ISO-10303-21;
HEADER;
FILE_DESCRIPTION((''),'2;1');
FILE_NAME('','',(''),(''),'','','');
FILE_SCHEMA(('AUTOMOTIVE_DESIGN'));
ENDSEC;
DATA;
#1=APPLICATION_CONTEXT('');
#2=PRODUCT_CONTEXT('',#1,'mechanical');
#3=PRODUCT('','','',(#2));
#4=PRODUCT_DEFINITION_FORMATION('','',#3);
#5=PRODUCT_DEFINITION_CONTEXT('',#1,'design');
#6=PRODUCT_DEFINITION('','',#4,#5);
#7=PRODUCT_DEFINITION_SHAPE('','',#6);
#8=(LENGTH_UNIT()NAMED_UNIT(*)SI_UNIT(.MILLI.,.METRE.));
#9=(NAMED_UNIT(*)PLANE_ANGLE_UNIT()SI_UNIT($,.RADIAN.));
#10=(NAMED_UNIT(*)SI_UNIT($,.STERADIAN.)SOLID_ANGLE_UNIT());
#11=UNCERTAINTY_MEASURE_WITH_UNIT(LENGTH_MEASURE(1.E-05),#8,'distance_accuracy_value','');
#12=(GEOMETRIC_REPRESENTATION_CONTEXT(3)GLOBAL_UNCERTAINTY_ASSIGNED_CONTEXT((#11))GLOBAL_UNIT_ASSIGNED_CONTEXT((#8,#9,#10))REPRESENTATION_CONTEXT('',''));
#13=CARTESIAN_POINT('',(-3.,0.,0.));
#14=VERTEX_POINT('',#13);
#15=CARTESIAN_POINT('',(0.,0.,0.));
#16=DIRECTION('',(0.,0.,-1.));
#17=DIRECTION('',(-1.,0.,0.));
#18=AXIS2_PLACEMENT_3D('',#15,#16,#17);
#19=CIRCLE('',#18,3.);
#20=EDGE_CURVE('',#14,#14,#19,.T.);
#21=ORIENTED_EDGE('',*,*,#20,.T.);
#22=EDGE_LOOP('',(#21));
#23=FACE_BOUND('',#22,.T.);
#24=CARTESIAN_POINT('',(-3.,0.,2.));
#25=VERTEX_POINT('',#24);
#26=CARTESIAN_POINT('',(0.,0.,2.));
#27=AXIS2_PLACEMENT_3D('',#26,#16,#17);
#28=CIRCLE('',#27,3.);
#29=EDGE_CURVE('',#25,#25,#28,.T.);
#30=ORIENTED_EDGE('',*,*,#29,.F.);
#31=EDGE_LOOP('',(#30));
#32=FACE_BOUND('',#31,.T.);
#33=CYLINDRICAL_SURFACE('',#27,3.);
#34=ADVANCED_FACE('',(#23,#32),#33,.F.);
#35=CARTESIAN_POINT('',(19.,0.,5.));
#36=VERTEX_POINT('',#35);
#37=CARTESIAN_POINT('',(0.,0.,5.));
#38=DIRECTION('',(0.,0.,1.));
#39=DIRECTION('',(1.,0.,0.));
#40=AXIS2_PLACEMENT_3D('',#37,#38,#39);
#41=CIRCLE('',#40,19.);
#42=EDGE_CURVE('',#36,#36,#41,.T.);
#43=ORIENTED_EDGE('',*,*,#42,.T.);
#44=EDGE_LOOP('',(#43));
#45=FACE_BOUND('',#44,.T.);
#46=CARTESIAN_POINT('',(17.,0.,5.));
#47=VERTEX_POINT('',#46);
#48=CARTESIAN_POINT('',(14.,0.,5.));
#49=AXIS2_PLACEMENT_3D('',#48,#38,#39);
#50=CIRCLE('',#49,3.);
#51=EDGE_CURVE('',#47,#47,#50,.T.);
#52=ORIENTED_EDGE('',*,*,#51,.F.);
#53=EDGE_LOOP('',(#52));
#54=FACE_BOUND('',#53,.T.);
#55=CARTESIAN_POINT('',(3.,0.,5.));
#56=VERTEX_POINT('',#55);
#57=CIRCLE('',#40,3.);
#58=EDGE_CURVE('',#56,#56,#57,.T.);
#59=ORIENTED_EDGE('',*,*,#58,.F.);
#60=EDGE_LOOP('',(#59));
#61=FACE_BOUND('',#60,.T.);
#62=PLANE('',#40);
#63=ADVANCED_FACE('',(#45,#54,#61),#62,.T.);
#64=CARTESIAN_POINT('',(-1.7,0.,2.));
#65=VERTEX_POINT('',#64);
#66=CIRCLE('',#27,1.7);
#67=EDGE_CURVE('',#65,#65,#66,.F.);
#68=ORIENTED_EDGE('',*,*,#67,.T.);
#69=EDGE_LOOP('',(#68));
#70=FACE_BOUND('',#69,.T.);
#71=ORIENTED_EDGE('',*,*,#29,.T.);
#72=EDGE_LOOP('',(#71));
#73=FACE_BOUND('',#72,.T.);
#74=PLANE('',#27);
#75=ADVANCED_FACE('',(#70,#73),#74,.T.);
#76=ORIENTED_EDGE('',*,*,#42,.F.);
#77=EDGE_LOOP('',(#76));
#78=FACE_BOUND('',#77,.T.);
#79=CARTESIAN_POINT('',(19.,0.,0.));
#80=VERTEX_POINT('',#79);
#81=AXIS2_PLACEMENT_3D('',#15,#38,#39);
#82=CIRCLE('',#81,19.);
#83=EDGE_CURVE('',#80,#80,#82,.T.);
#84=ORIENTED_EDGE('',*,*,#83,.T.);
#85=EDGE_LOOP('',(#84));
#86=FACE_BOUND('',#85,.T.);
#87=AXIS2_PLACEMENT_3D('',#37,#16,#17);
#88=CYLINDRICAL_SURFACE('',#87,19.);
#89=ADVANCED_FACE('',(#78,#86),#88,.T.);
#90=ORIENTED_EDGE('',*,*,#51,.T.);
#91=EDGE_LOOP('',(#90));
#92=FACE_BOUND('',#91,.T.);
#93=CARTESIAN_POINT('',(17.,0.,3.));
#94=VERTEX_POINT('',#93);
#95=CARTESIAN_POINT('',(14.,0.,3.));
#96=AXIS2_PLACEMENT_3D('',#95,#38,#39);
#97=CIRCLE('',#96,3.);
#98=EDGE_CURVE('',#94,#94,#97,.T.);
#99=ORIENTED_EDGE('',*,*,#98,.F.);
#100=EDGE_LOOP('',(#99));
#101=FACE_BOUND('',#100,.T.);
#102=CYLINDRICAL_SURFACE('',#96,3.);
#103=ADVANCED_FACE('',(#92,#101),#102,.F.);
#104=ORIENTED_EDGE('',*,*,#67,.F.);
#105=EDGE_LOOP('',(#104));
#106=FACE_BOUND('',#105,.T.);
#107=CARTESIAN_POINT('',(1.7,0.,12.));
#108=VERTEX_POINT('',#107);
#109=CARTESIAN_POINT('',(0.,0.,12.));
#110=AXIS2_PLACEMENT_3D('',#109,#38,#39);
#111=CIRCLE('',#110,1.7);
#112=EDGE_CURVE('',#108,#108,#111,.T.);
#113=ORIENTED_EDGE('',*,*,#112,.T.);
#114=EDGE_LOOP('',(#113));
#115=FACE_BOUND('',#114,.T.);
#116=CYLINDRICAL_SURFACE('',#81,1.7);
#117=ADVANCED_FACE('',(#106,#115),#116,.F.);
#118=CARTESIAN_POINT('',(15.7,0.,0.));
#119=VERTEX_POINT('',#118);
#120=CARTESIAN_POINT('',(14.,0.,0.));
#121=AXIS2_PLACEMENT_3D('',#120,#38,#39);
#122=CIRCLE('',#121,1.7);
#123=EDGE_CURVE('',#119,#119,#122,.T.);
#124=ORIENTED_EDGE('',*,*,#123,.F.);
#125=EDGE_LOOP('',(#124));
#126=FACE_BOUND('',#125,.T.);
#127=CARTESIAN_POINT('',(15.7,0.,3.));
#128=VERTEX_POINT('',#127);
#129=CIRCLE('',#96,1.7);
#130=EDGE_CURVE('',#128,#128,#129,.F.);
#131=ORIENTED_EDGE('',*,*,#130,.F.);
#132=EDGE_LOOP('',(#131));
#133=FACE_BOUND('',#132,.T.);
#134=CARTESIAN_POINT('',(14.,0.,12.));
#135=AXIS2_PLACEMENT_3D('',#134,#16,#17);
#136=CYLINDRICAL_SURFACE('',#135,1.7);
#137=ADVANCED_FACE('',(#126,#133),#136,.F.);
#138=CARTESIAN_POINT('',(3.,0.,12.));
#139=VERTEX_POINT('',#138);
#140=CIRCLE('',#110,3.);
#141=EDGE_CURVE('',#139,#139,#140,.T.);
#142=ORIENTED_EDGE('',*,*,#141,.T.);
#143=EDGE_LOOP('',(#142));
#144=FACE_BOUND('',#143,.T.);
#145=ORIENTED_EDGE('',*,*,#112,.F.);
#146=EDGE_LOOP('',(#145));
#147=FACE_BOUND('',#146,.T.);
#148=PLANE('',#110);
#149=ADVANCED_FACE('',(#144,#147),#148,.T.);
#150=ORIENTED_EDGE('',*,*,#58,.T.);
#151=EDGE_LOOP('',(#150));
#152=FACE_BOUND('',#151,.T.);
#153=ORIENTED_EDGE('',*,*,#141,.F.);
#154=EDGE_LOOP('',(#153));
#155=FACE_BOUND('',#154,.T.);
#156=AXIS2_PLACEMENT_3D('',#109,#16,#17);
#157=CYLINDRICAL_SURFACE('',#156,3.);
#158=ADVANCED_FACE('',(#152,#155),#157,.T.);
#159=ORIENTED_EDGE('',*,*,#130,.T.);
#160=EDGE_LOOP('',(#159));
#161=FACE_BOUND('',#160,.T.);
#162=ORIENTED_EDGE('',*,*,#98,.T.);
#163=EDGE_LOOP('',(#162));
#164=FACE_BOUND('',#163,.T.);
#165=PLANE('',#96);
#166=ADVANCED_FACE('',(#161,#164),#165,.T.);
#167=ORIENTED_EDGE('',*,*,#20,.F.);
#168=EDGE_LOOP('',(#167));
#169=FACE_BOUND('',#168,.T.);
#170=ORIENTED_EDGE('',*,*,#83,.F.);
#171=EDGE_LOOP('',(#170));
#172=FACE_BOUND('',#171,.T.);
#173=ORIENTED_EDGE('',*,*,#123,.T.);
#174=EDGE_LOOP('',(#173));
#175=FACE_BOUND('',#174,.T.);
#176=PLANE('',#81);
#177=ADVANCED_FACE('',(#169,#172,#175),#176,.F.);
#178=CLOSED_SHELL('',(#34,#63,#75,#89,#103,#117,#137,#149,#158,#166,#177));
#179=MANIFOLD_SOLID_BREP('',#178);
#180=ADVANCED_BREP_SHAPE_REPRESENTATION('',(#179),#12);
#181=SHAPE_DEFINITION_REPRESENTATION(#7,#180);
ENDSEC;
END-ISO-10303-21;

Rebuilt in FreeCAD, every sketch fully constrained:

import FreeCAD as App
import Part
import Sketcher
Q = App.Units.Quantity

doc = App.newDocument("Part")
body = doc.addObject("PartDesign::Body", "Body")

# Sketch on XY plane
sketch1 = body.newObject("Sketcher::SketchObject", "Sketch")
sketch1.AttachmentSupport = (doc.getObject("XY_Plane"), [""])
sketch1.MapMode = "FlatFace"
sketch1.addGeometry(Part.Circle(App.Vector(0, 0, 0), App.Vector(0, 0, 1), 19), False)
sketch1.addConstraint([
    Sketcher.Constraint("Coincident", 0, 3, -1, 1),
    Sketcher.Constraint("Diameter", 0, Q("38 mm")),
])
pad1 = body.newObject("PartDesign::Pad", "Pad")
pad1.Profile = sketch1
pad1.Length = 5

# Sketch on XY plane
sketch2 = body.newObject("Sketcher::SketchObject", "Sketch001")
sketch2.AttachmentSupport = (doc.getObject("XY_Plane"), [""])
sketch2.MapMode = "FlatFace"
sketch2.AttachmentOffset = App.Placement(App.Vector(0, 0, 5), App.Rotation())
sketch2.addGeometry(Part.Circle(App.Vector(0, 0, 0), App.Vector(0, 0, 1), 3), False)
sketch2.addConstraint([
    Sketcher.Constraint("Coincident", 0, 3, -1, 1),
    Sketcher.Constraint("Diameter", 0, Q("6 mm")),
])
pad2 = body.newObject("PartDesign::Pad", "Pad001")
pad2.Profile = sketch2
pad2.Length = 7

# Sketch on XY plane
sketch3 = body.newObject("Sketcher::SketchObject", "Sketch002")
sketch3.AttachmentSupport = (doc.getObject("XY_Plane"), [""])
sketch3.MapMode = "FlatFace"
sketch3.AttachmentOffset = App.Placement(App.Vector(0, 0, 12), App.Rotation())
sketch3.addGeometry(Part.Circle(App.Vector(0, 0, 0), App.Vector(0, 0, 1), 1.7), False)
sketch3.addConstraint([
    Sketcher.Constraint("Coincident", 0, 3, -1, 1),
    Sketcher.Constraint("Diameter", 0, Q("3.4 mm")),
])
pocket1 = body.newObject("PartDesign::Pocket", "Pocket")
pocket1.Profile = sketch3
pocket1.Type = "ThroughAll"

# Sketch on XY plane
sketch4 = body.newObject("Sketcher::SketchObject", "Sketch003")
sketch4.AttachmentSupport = (doc.getObject("XY_Plane"), [""])
sketch4.MapMode = "FlatFace"
sketch4.addGeometry(Part.Circle(App.Vector(0, 0, 0), App.Vector(0, 0, 1), 3), False)
sketch4.addConstraint([
    Sketcher.Constraint("Coincident", 0, 3, -1, 1),
    Sketcher.Constraint("Diameter", 0, Q("6 mm")),
])
pocket2 = body.newObject("PartDesign::Pocket", "Pocket001")
pocket2.Profile = sketch4
pocket2.Length = 2
pocket2.Reversed = True

# Sketch on XY plane
sketch5 = body.newObject("Sketcher::SketchObject", "Sketch004")
sketch5.AttachmentSupport = (doc.getObject("XY_Plane"), [""])
sketch5.MapMode = "FlatFace"
sketch5.addGeometry(Part.Circle(App.Vector(14, 0, 0), App.Vector(0, 0, 1), 1.7), False)
sketch5.addConstraint([
    Sketcher.Constraint("PointOnObject", 0, 3, -1),
    Sketcher.Constraint("Diameter", 0, Q("3.4 mm")),
    Sketcher.Constraint("DistanceX", -1, 1, 0, 3, Q("14 mm")),
])
pocket3 = body.newObject("PartDesign::Pocket", "Pocket002")
pocket3.Profile = sketch5
pocket3.Type = "ThroughAll"
pocket3.Midplane = True

# Sketch on XY plane
sketch6 = body.newObject("Sketcher::SketchObject", "Sketch005")
sketch6.AttachmentSupport = (doc.getObject("XY_Plane"), [""])
sketch6.MapMode = "FlatFace"
sketch6.AttachmentOffset = App.Placement(App.Vector(0, 0, 5), App.Rotation())
sketch6.addGeometry(Part.Circle(App.Vector(14, 0, 0), App.Vector(0, 0, 1), 3), False)
sketch6.addConstraint([
    Sketcher.Constraint("PointOnObject", 0, 3, -1),
    Sketcher.Constraint("Diameter", 0, Q("6 mm")),
    Sketcher.Constraint("DistanceX", -1, 1, 0, 3, Q("14 mm")),
])
pocket4 = body.newObject("PartDesign::Pocket", "Pocket003")
pocket4.Profile = sketch6
pocket4.Length = 2

doc.recompute()
